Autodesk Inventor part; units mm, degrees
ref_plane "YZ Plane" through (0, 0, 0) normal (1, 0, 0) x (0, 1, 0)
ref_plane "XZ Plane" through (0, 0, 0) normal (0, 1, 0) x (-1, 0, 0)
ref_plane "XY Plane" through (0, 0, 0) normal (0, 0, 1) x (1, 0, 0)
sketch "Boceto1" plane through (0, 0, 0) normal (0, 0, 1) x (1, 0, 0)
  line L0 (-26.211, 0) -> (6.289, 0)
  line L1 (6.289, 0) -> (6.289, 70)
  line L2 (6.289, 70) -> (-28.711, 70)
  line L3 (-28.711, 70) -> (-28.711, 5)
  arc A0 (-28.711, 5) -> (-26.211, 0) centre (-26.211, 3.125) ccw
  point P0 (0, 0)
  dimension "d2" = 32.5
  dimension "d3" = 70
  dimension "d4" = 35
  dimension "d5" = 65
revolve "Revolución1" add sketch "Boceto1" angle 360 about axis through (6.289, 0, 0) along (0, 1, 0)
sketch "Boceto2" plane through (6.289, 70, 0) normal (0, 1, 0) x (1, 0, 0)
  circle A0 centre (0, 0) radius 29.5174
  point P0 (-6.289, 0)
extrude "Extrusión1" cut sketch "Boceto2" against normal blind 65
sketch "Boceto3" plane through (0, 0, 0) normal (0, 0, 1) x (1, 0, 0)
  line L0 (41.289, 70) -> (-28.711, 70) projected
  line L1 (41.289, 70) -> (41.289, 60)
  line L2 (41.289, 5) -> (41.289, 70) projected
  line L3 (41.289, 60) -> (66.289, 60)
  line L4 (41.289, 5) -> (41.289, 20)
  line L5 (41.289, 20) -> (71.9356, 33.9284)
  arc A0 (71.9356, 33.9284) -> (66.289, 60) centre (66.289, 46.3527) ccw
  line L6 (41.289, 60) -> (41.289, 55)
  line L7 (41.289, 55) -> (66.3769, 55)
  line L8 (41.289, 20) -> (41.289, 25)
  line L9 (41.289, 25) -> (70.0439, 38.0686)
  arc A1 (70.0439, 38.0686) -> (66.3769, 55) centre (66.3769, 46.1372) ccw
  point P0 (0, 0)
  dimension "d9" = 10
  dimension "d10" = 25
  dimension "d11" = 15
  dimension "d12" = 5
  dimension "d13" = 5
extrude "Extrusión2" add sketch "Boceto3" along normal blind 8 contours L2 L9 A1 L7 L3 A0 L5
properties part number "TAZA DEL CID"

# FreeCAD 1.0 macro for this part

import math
import FreeCAD as App
import Part
import Sketcher
from FreeCAD import Vector
Q = App.Units.Quantity

doc = App.newDocument("Part")
body = doc.addObject("PartDesign::Body", "Body")
body.AllowCompound = True

sketch1 = body.newObject("Sketcher::SketchObject", "Sketch")
sketch1.AttachmentSupport = (doc.getObject("XY_Plane"), [""])
sketch1.MapMode = "FlatFace"
sketch1.addGeometry(Part.ArcOfCircle(Part.Circle(Vector(-26.2, 3.1, 0), Vector(0, 0, 1), 3.1), math.radians(143), math.radians(270)), False)
sketch1.addGeometry(Part.LineSegment(Vector(-26.2, 0, 0), Vector(6.3, 0, 0)), False)
sketch1.addGeometry(Part.LineSegment(Vector(6.3, 0, 0), Vector(6.3, 70, 0)), False)
sketch1.addGeometry(Part.LineSegment(Vector(6.3, 70, 0), Vector(-28.7, 70, 0)), False)
sketch1.addGeometry(Part.LineSegment(Vector(-28.7, 70, 0), Vector(-28.7, 5, 0)), False)
sketch1.addGeometry(Part.LineSegment(Vector(6.3, 0, 0), Vector(6.3, 70, 0)), True)
sketch1.addConstraint(Sketcher.Constraint("Tangent", 0, 2, 1, 1))
sketch1.addConstraint(Sketcher.Constraint("Coincident", 1, 2, 2, 1))
sketch1.addConstraint(Sketcher.Constraint("Coincident", 2, 2, 3, 1))
sketch1.addConstraint(Sketcher.Constraint("Coincident", 3, 2, 4, 1))
sketch1.addConstraint(Sketcher.Constraint("Coincident", 4, 2, 0, 1))
sketch1.addConstraint(Sketcher.Constraint("Horizontal", 1))
sketch1.addConstraint(Sketcher.Constraint("Vertical", 2))
sketch1.addConstraint(Sketcher.Constraint("Horizontal", 3))
sketch1.addConstraint(Sketcher.Constraint("Vertical", 4))
sketch1.addConstraint(Sketcher.Constraint("Vertical", 5))
sketch1.addConstraint(Sketcher.Constraint("Coincident", 5, 1, 1, 2))
sketch1.addConstraint(Sketcher.Constraint("PointOnObject", 0, 2, -1))
sketch1.addConstraint(Sketcher.Constraint("Horizontal", 3, 2, 5, 2))
sketch1.addConstraint(Sketcher.Constraint("DistanceX", 3, 2, 3, 1, 35.0))
sketch1.addConstraint(Sketcher.Constraint("DistanceY", 2, 1, 2, 2, 70.0))
sketch1.addConstraint(Sketcher.Constraint("DistanceY", 4, 2, 4, 1, 65.0))
sketch1.addConstraint(Sketcher.Constraint("DistanceX", 1, 1, 1, 2, 32.5))
sketch1.addConstraint(Sketcher.Constraint("DistanceX", 0, 3, -1, 1, 26.211))
revolution = body.newObject("PartDesign::Revolution", "Revolution")
revolution.Profile = sketch1
revolution.ReferenceAxis = (sketch1, ["Axis0"])
revolution.Angle = 360

sketch2 = body.newObject("Sketcher::SketchObject", "Sketch001")
sketch2.AttachmentSupport = (doc.getObject("XZ_Plane"), [""])
sketch2.MapMode = "FlatFace"
sketch2.AttachmentOffset = App.Placement(Vector(0, 0, -70), App.Rotation())
sketch2.addGeometry(Part.Circle(Vector(6, 0, 0), Vector(0, 0, 1), 30), False)
sketch2.addConstraint(Sketcher.Constraint("PointOnObject", 0, 3, -1))
sketch2.addConstraint(Sketcher.Constraint("Diameter", 0, 59.0348))
sketch2.addConstraint(Sketcher.Constraint("DistanceX", -1, 1, 0, 3, 6.289))
pocket1 = body.newObject("PartDesign::Pocket", "Pocket")
pocket1.Profile = sketch2
pocket1.Length = 65
pocket1.Reversed = True

sketch3 = body.newObject("Sketcher::SketchObject", "Sketch002")
sketch3.AttachmentSupport = (doc.getObject("XY_Plane"), [""])
sketch3.MapMode = "FlatFace"
sketch3.addGeometry(Part.LineSegment(Vector(41, 25, 0), Vector(41, 20, 0)), False)
sketch3.addGeometry(Part.LineSegment(Vector(41, 20, 0), Vector(72, 34, 0)), False)
sketch3.addGeometry(Part.ArcOfCircle(Part.Circle(Vector(66, 46, 0), Vector(0, 0, 1), 14), math.radians(-66), math.radians(90)), False)
sketch3.addGeometry(Part.LineSegment(Vector(66, 60, 0), Vector(41, 60, 0)), False)
sketch3.addGeometry(Part.LineSegment(Vector(41, 60, 0), Vector(41, 55, 0)), False)
sketch3.addGeometry(Part.LineSegment(Vector(41, 55, 0), Vector(66, 55, 0)), False)
sketch3.addGeometry(Part.ArcOfCircle(Part.Circle(Vector(66, 46, 0), Vector(0, 0, 1), 9), math.radians(-66), math.radians(90)), False)
sketch3.addGeometry(Part.LineSegment(Vector(70, 38, 0), Vector(41, 25, 0)), False)
sketch3.addConstraint(Sketcher.Constraint("Coincident", 0, 2, 1, 1))
sketch3.addConstraint(Sketcher.Constraint("Tangent", 1, 2, 2, 1))
sketch3.addConstraint(Sketcher.Constraint("Tangent", 2, 2, 3, 1))
sketch3.addConstraint(Sketcher.Constraint("Coincident", 3, 2, 4, 1))
sketch3.addConstraint(Sketcher.Constraint("Coincident", 4, 2, 5, 1))
sketch3.addConstraint(Sketcher.Constraint("Tangent", 5, 2, 6, 2))
sketch3.addConstraint(Sketcher.Constraint("Tangent", 6, 1, 7, 1))
sketch3.addConstraint(Sketcher.Constraint("Coincident", 7, 2, 0, 1))
sketch3.addConstraint(Sketcher.Constraint("Vertical", 0))
sketch3.addConstraint(Sketcher.Constraint("Horizontal", 3))
sketch3.addConstraint(Sketcher.Constraint("Vertical", 4))
sketch3.addConstraint(Sketcher.Constraint("Horizontal", 5))
sketch3.addConstraint(Sketcher.Constraint("Parallel", 1, 7))
sketch3.addConstraint(Sketcher.Constraint("Vertical", 0, 2, 3, 2))
sketch3.addConstraint(Sketcher.Constraint("Equal", 0, 4))
sketch3.addConstraint(Sketcher.Constraint("DistanceX", 3, 2, 3, 1, 25.0))
sketch3.addConstraint(Sketcher.Constraint("DistanceY", 0, 2, 0, 1, 5.0))
sketch3.addConstraint(Sketcher.Constraint("DistanceY", -1, 1, 7, 2, 25.0))
sketch3.addConstraint(Sketcher.Constraint("DistanceY", -1, 1, 2, 2, 60.0))
sketch3.addConstraint(Sketcher.Constraint("Angle", 1, Q("24.441 deg")))
sketch3.addConstraint(Sketcher.Constraint("Radius", 6, 8.8628))
sketch3.addConstraint(Sketcher.Constraint("DistanceX", -1, 1, 2, 3, 66.289))
pad1 = body.newObject("PartDesign::Pad", "Pad")
pad1.Profile = sketch3
pad1.Length = 8

doc.recompute()
